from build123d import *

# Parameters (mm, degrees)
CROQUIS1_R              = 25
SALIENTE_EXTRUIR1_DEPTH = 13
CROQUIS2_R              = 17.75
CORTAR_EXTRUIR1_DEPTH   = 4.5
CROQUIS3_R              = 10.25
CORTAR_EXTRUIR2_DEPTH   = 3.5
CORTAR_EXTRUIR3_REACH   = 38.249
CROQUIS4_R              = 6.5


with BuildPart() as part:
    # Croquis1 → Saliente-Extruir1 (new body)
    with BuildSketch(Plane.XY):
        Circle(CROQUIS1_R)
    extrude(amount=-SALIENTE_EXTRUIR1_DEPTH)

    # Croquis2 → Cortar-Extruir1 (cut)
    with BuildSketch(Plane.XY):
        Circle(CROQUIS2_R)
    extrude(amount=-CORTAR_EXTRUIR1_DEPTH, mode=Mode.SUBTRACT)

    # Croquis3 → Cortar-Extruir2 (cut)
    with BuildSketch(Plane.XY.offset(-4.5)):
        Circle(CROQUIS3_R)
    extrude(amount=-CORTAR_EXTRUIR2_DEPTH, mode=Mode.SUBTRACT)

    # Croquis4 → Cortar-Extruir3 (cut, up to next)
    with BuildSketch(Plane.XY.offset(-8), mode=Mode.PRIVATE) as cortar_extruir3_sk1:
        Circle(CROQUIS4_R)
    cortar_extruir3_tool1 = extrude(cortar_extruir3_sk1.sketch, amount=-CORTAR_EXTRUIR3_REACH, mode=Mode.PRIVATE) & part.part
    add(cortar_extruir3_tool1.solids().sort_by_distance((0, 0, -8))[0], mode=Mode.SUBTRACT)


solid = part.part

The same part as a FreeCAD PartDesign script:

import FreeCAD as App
import Part
import Sketcher
from FreeCAD import Vector

doc = App.newDocument("Part")
params = doc.addObject("Spreadsheet::Sheet", "Params")
for row, (alias, value) in enumerate([
    ("sketch1_diameter", "50 mm"),
    ("pad1_length", "13 mm"),
    ("sketch2_diameter", "35.5 mm"),
    ("pocket1_length", "4.5 mm"),
    ("sketch3_diameter", "20.5 mm"),
    ("pocket2_length", "3.5 mm"),
    ("sketch4_diameter", "13 mm"),
], start=1):
    params.set(f"A{row}", alias)
    params.set(f"B{row}", "=" + value)
    params.setAlias(f"B{row}", alias)

body = doc.addObject("PartDesign::Body", "Body")

# Sketch on XY plane
sketch1 = body.newObject("Sketcher::SketchObject", "Sketch")
sketch1.AttachmentSupport = (doc.getObject("XY_Plane"), [""])
sketch1.MapMode = "FlatFace"
sketch1.addGeometry(Part.Circle(Vector(0, 0, 0), Vector(0, 0, 1), 25), False)
sketch1.addConstraint(Sketcher.Constraint("Coincident", 0, 3, -1, 1))
sketch1.addConstraint(Sketcher.Constraint("Diameter", 0, 50.0))
sketch1.setExpression("Constraints[1]", "Params.sketch1_diameter")
pad1 = body.newObject("PartDesign::Pad", "Pad")
pad1.Profile = sketch1
pad1.setExpression("Length", "Params.pad1_length")
pad1.Reversed = True

# Sketch on XY plane
sketch2 = body.newObject("Sketcher::SketchObject", "Sketch001")
sketch2.AttachmentSupport = (doc.getObject("XY_Plane"), [""])
sketch2.MapMode = "FlatFace"
sketch2.addGeometry(Part.Circle(Vector(0, 0, 0), Vector(0, 0, 1), 17.75), False)
sketch2.addConstraint(Sketcher.Constraint("Coincident", 0, 3, -1, 1))
sketch2.addConstraint(Sketcher.Constraint("Diameter", 0, 35.5))
sketch2.setExpression("Constraints[1]", "Params.sketch2_diameter")
pocket1 = body.newObject("PartDesign::Pocket", "Pocket")
pocket1.Profile = sketch2
pocket1.setExpression("Length", "Params.pocket1_length")

# Sketch on XY plane
sketch3 = body.newObject("Sketcher::SketchObject", "Sketch002")
sketch3.AttachmentSupport = (doc.getObject("XY_Plane"), [""])
sketch3.MapMode = "FlatFace"
sketch3.AttachmentOffset = App.Placement(Vector(0, 0, -4.5), App.Rotation())
sketch3.addGeometry(Part.Circle(Vector(0, 0, 0), Vector(0, 0, 1), 10.25), False)
sketch3.addConstraint(Sketcher.Constraint("Coincident", 0, 3, -1, 1))
sketch3.addConstraint(Sketcher.Constraint("Diameter", 0, 20.5))
sketch3.setExpression("Constraints[1]", "Params.sketch3_diameter")
pocket2 = body.newObject("PartDesign::Pocket", "Pocket001")
pocket2.Profile = sketch3
pocket2.setExpression("Length", "Params.pocket2_length")

# Sketch on XY plane
sketch4 = body.newObject("Sketcher::SketchObject", "Sketch003")
sketch4.AttachmentSupport = (doc.getObject("XY_Plane"), [""])
sketch4.MapMode = "FlatFace"
sketch4.AttachmentOffset = App.Placement(Vector(0, 0, -8), App.Rotation())
sketch4.addGeometry(Part.Circle(Vector(0, 0, 0), Vector(0, 0, 1), 6.5), False)
sketch4.addConstraint(Sketcher.Constraint("Coincident", 0, 3, -1, 1))
sketch4.addConstraint(Sketcher.Constraint("Diameter", 0, 13.0))
sketch4.setExpression("Constraints[1]", "Params.sketch4_diameter")
pocket3 = body.newObject("PartDesign::Pocket", "Pocket002")
pocket3.Profile = sketch4
pocket3.Type = "UpToFirst"

doc.recompute()
